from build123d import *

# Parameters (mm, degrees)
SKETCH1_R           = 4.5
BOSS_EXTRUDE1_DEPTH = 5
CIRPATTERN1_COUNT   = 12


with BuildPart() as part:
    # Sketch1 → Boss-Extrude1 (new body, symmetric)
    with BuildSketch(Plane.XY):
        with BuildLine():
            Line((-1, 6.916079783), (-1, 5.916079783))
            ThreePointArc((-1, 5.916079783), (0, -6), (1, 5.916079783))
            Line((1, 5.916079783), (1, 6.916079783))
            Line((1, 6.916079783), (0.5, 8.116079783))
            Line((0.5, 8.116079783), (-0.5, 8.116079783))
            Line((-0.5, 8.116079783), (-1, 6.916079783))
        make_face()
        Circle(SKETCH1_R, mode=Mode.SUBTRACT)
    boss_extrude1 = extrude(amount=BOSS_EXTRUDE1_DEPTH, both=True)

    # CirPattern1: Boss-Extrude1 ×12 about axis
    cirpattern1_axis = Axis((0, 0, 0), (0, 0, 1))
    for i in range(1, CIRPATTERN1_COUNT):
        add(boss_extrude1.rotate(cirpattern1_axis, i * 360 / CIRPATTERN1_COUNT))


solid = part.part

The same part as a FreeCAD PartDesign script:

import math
import FreeCAD as App
import Part
import Sketcher

V = App.Vector

doc = App.newDocument("Part")
body = doc.addObject("PartDesign::Body", "Body")

sketch1 = body.newObject("Sketcher::SketchObject", "Sketch")
sketch1.AttachmentSupport = (doc.getObject("XY_Plane"), [""])
sketch1.MapMode = "FlatFace"
sketch1.addGeometry(Part.LineSegment(V(-1, 6.9, 0), V(-1, 5.9, 0)), False)
sketch1.addGeometry(Part.ArcOfCircle(Part.Circle(V(0, 0, 0), V(0, 0, 1), 6), math.radians(100), math.radians(440)), False)
sketch1.addGeometry(Part.LineSegment(V(1, 5.9, 0), V(1, 6.9, 0)), False)
sketch1.addGeometry(Part.LineSegment(V(1, 6.9, 0), V(0.5, 8.1, 0)), False)
sketch1.addGeometry(Part.LineSegment(V(0.5, 8.1, 0), V(-0.5, 8.1, 0)), False)
sketch1.addGeometry(Part.LineSegment(V(-0.5, 8.1, 0), V(-1, 6.9, 0)), False)
sketch1.addGeometry(Part.Circle(V(0, 0, 0), V(0, 0, 1), 4.5), False)
sketch1.addConstraint(Sketcher.Constraint("Coincident", 0, 2, 1, 1))
sketch1.addConstraint(Sketcher.Constraint("Coincident", 1, 2, 2, 1))
sketch1.addConstraint(Sketcher.Constraint("Coincident", 2, 2, 3, 1))
sketch1.addConstraint(Sketcher.Constraint("Coincident", 3, 2, 4, 1))
sketch1.addConstraint(Sketcher.Constraint("Coincident", 4, 2, 5, 1))
sketch1.addConstraint(Sketcher.Constraint("Coincident", 5, 2, 0, 1))
sketch1.addConstraint(Sketcher.Constraint("Vertical", 0))
sketch1.addConstraint(Sketcher.Constraint("Vertical", 2))
sketch1.addConstraint(Sketcher.Constraint("Horizontal", 4))
sketch1.addConstraint(Sketcher.Constraint("Coincident", 1, 3, -1, 1))
sketch1.addConstraint(Sketcher.Constraint("Coincident", 6, 3, -1, 1))
sketch1.addConstraint(Sketcher.Constraint("Symmetric", 2, 2, 5, 2, -2))
sketch1.addConstraint(Sketcher.Constraint("Equal", 4, 0))
sketch1.addConstraint(Sketcher.Constraint("Equal", 3, 5))
sketch1.addConstraint(Sketcher.Constraint("Diameter", 6, 9.0))
sketch1.addConstraint(Sketcher.Constraint("Radius", 1, 6.0))
sketch1.addConstraint(Sketcher.Constraint("DistanceX", 4, 2, 4, 1, 1.0))
sketch1.addConstraint(Sketcher.Constraint("DistanceX", 0, 2, -1, 1, 1.0))
sketch1.addConstraint(Sketcher.Constraint("Distance", 3, 1.3))
pad1 = body.newObject("PartDesign::Pad", "Pad")
pad1.Profile = sketch1
pad1.Length = 10
pad1.Midplane = True
doc.recompute()

polarpattern = body.newObject("PartDesign::PolarPattern", "PolarPattern")
polarpattern.Originals = [pad1]
polarpattern.Axis = (doc.getObject("Z_Axis"), [""])
polarpattern.Angle = 360
polarpattern.Occurrences = 12
body.Tip = polarpattern

doc.recompute()
